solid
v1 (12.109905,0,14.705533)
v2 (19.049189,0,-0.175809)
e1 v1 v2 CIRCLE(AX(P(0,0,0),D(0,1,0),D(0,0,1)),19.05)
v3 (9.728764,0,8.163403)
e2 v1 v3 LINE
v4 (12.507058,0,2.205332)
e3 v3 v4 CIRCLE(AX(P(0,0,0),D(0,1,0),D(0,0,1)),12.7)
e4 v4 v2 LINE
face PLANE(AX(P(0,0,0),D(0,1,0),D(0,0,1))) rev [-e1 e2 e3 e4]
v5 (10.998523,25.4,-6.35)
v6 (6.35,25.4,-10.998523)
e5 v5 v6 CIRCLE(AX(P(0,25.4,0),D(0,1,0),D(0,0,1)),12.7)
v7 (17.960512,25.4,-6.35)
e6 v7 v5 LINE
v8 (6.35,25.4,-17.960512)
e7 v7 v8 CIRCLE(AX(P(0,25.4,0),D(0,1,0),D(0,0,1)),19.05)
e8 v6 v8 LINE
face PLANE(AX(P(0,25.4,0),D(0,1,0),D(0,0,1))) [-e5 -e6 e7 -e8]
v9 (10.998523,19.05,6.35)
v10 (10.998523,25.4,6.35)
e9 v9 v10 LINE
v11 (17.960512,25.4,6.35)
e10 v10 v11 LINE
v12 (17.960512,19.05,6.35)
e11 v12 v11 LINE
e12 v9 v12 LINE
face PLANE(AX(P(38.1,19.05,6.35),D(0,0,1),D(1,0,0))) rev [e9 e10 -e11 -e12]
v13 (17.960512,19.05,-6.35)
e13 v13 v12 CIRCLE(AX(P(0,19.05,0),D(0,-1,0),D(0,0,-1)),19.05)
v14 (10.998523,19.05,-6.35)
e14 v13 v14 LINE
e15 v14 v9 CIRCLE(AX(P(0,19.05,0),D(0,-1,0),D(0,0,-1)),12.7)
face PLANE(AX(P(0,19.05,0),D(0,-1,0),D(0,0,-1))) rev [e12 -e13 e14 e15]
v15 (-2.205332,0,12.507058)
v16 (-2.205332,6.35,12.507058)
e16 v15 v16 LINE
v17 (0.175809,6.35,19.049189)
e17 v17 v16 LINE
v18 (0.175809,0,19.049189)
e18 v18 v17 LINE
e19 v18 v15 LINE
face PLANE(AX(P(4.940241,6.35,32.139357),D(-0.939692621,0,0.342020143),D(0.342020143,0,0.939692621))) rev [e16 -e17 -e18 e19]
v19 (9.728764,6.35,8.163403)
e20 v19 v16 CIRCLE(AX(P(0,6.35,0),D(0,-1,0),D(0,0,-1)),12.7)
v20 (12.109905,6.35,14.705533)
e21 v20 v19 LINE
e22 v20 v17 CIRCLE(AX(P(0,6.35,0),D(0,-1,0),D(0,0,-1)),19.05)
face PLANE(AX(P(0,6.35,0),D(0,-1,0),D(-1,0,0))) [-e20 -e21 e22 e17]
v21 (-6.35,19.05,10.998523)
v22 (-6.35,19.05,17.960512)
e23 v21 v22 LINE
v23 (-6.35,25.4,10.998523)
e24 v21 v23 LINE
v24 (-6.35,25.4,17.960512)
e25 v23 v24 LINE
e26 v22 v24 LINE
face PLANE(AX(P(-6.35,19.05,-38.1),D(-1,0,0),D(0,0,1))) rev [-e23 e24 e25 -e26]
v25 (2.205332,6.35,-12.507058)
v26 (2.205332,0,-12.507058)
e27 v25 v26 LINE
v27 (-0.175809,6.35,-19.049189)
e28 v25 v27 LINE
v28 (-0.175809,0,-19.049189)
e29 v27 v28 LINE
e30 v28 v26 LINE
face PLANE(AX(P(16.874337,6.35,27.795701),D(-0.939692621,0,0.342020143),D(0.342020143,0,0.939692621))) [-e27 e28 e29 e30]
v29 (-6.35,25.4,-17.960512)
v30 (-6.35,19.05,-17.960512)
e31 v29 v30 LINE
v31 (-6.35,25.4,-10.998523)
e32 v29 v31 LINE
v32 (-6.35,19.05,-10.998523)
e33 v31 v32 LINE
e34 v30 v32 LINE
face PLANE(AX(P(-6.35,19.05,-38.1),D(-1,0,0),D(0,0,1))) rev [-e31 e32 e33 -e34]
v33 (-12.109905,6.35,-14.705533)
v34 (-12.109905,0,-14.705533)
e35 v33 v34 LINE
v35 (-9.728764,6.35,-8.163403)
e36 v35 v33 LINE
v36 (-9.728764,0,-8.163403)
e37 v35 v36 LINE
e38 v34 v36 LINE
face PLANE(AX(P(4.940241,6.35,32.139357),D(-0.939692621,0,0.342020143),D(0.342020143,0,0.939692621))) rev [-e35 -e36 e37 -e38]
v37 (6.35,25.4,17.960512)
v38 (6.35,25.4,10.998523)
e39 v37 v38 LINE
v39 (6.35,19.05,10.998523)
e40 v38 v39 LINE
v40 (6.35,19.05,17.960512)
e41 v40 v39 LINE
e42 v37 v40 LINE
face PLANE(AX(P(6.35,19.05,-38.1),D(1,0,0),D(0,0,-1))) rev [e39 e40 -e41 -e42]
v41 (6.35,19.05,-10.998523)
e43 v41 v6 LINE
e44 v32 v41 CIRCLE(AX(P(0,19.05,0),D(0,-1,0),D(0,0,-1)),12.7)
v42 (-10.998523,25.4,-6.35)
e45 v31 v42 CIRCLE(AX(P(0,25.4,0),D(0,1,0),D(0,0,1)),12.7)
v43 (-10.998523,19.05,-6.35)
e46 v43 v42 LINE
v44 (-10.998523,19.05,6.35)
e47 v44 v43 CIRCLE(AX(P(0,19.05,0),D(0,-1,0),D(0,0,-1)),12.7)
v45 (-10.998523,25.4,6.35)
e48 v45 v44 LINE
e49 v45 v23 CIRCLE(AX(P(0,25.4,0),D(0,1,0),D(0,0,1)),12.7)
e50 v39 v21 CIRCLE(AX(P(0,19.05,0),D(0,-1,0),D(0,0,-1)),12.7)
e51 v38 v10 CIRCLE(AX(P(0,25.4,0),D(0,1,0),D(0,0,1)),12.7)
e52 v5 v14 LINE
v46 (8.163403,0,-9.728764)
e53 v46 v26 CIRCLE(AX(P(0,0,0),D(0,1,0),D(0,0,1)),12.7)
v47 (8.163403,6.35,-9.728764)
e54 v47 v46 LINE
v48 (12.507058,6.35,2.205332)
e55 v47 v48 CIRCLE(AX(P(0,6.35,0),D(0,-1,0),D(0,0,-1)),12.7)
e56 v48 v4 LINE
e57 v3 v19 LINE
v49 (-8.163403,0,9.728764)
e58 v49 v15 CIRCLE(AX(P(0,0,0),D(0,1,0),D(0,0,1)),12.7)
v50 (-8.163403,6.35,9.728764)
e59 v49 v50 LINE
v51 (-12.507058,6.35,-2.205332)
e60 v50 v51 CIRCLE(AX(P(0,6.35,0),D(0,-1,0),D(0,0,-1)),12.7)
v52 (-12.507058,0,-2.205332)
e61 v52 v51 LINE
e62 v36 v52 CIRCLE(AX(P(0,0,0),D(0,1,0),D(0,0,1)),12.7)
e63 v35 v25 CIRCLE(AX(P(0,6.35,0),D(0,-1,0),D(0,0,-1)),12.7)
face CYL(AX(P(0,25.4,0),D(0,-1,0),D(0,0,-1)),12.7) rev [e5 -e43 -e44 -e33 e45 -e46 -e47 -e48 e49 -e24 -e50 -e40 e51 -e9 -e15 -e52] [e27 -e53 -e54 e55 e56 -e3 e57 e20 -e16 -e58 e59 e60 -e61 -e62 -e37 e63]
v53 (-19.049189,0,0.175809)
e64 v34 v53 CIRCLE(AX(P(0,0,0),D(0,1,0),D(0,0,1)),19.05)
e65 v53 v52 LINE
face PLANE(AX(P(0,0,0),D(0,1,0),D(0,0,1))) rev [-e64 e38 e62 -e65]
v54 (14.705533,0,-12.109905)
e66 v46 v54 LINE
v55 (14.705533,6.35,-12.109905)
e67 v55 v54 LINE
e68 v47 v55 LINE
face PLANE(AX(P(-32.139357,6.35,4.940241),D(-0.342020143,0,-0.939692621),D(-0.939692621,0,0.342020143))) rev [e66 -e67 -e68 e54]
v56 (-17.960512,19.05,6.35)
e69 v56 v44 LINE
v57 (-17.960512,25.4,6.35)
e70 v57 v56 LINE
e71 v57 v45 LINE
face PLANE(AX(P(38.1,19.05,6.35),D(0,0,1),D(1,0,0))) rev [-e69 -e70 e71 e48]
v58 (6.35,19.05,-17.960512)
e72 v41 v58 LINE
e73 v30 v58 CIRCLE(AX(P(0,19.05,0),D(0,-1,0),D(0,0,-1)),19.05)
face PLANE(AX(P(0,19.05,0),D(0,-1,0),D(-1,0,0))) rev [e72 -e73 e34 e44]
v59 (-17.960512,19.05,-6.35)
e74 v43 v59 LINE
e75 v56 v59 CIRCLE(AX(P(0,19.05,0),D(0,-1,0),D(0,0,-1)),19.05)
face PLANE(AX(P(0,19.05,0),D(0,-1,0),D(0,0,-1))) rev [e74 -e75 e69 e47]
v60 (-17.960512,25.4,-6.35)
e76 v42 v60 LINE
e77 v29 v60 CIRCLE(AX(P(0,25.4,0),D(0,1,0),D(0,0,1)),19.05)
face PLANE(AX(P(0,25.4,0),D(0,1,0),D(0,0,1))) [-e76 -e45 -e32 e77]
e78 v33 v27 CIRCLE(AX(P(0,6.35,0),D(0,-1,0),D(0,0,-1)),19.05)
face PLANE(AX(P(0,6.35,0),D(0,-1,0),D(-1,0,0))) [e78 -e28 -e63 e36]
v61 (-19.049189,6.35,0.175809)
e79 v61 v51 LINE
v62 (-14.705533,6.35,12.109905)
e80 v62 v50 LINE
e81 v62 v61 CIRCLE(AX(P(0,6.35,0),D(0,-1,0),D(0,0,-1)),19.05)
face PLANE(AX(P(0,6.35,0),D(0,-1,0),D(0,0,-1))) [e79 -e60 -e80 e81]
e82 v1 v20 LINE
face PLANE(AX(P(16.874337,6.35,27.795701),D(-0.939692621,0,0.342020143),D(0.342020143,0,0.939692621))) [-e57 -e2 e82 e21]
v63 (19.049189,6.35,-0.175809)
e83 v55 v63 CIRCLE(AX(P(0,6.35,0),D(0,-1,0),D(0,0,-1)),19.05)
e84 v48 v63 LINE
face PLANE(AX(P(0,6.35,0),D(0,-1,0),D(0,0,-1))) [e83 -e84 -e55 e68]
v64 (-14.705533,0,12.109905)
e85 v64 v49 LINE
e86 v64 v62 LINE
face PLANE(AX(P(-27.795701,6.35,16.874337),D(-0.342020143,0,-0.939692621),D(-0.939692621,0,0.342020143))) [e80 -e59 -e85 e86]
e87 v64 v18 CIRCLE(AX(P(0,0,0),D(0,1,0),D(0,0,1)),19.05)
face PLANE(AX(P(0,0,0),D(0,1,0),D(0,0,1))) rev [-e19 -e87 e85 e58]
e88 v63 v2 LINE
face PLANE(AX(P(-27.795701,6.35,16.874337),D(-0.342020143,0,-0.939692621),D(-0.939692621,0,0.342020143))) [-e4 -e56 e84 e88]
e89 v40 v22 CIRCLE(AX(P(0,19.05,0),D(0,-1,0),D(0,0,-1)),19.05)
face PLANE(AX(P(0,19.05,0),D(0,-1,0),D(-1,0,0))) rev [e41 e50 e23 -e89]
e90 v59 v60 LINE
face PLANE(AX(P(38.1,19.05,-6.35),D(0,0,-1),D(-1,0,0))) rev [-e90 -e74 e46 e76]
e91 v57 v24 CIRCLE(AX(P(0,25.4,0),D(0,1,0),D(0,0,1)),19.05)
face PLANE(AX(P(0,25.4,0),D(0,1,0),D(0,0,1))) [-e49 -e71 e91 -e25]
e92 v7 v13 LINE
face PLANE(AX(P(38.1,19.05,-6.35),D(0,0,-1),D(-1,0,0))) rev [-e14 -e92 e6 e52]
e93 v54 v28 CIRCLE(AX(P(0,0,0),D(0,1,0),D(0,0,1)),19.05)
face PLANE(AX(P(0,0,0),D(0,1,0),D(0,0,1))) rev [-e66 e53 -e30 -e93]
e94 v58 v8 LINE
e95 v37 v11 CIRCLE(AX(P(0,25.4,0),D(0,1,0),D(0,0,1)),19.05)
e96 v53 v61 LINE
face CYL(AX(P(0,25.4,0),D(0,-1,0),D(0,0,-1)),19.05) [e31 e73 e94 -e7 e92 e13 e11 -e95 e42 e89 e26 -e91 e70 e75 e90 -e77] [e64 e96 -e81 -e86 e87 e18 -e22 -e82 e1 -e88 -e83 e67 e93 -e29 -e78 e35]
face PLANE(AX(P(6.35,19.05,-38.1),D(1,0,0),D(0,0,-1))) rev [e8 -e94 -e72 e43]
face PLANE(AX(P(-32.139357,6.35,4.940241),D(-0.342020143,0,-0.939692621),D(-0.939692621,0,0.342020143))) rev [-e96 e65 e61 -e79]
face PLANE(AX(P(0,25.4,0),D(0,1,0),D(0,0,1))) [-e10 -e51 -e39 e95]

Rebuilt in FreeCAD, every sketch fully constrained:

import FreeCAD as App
import Part
import Sketcher

V = App.Vector
Q = App.Units.Quantity

doc = App.newDocument("Part")
body = doc.addObject("PartDesign::Body", "Body")

# Sketch on XZ plane
sketch1 = body.newObject("Sketcher::SketchObject", "Sketch")
sketch1.AttachmentSupport = (doc.getObject("XZ_Plane"), [""])
sketch1.MapMode = "FlatFace"
sketch1.addGeometry([
    Part.Circle(V(0, 0, 0), V(0, 0, 1), 19.05),
    Part.Circle(V(0, 0, 0), V(0, 0, 1), 12.7),
], False)
sketch1.addConstraint([
    Sketcher.Constraint("Coincident", 0, 3, -1, 1),
    Sketcher.Constraint("Coincident", 1, 3, -1, 1),
    Sketcher.Constraint("Diameter", 1, Q("1 in")),
    Sketcher.Constraint("Diameter", 0, Q("1.5 in")),
])
pad1 = body.newObject("PartDesign::Pad", "Pad")
pad1.Profile = sketch1
pad1.Length = Q("1 in")
pad1.Reversed = True

# Sketch on XZ plane
sketch2 = body.newObject("Sketcher::SketchObject", "Sketch001")
sketch2.AttachmentSupport = (doc.getObject("XZ_Plane"), [""])
sketch2.MapMode = "FlatFace"
sketch2.AttachmentOffset = App.Placement(V(0, 0, -1 * 25.4), App.Rotation())
sketch2.addGeometry([
    Part.LineSegment(V(-38.1, -6.35, 0), V(-38.1, 6.35, 0)),
    Part.LineSegment(V(-38.1, 6.35, 0), V(38.1, 6.35, 0)),
    Part.LineSegment(V(38.1, 6.35, 0), V(38.1, -6.35, 0)),
    Part.LineSegment(V(38.1, -6.35, 0), V(-38.1, -6.35, 0)),
], False)
sketch2.addConstraint([
    Sketcher.Constraint("Coincident", 0, 2, 1, 1),
    Sketcher.Constraint("Coincident", 1, 2, 2, 1),
    Sketcher.Constraint("Coincident", 2, 2, 3, 1),
    Sketcher.Constraint("Coincident", 3, 2, 0, 1),
    Sketcher.Constraint("Vertical", 0),
    Sketcher.Constraint("Horizontal", 1),
    Sketcher.Constraint("Vertical", 2),
    Sketcher.Constraint("Horizontal", 3),
    Sketcher.Constraint("Symmetric", 0, 2, 2, 2, -1, 1),
    Sketcher.Constraint("DistanceX", 1, 1, 1, 2, Q("3 in")),
    Sketcher.Constraint("DistanceY", 0, 1, 0, 2, Q("0.5 in")),
])
pocket1 = body.newObject("PartDesign::Pocket", "Pocket")
pocket1.Profile = sketch2
pocket1.Length = Q("0.25 in")
pocket1.Reversed = True
doc.recompute()

polarpattern = body.newObject("PartDesign::PolarPattern", "PolarPattern")
polarpattern.Originals = [pocket1]
polarpattern.Axis = (doc.getObject("Y_Axis"), [""])
polarpattern.Angle = 90
polarpattern.Occurrences = 2
body.Tip = polarpattern

# Sketch on XZ plane
sketch3 = body.newObject("Sketcher::SketchObject", "Sketch002")
sketch3.AttachmentSupport = (doc.getObject("XZ_Plane"), [""])
sketch3.MapMode = "FlatFace"
sketch3.addGeometry([
    Part.LineSegment(V(32.139357, -4.940241, 0), V(-27.795701, 16.874337, 0)),
    Part.LineSegment(V(-27.795701, 16.874337, 0), V(-32.139357, 4.940241, 0)),
    Part.LineSegment(V(-32.139357, 4.940241, 0), V(27.795701, -16.874337, 0)),
    Part.LineSegment(V(27.795701, -16.874337, 0), V(32.139357, -4.940241, 0)),
], False)
sketch3.addConstraint([
    Sketcher.Constraint("Coincident", 0, 2, 1, 1),
    Sketcher.Constraint("Coincident", 1, 2, 2, 1),
    Sketcher.Constraint("Coincident", 2, 2, 3, 1),
    Sketcher.Constraint("Coincident", 3, 2, 0, 1),
    Sketcher.Constraint("Symmetric", 0, 2, 2, 2, -1, 1),
    Sketcher.Constraint("Symmetric", 1, 2, 3, 2, -1, 1),
    Sketcher.Constraint("Perpendicular", 0, 1),
    Sketcher.Constraint("Angle", 0, Q("160 deg")),
    Sketcher.Constraint("Distance", 1, Q("0.5 in")),
    Sketcher.Constraint("DistanceX", 0, 2, -1, 1, Q("27.795701 mm")),
])
pocket2 = body.newObject("PartDesign::Pocket", "Pocket001")
pocket2.Profile = sketch3
pocket2.Length = Q("0.25 in")
doc.recompute()

polarpattern2 = body.newObject("PartDesign::PolarPattern", "PolarPattern001")
polarpattern2.Originals = [pocket2]
polarpattern2.Axis = (doc.getObject("Y_Axis"), [""])
polarpattern2.Angle = 90
polarpattern2.Occurrences = 2
body.Tip = polarpattern2

doc.recompute()
